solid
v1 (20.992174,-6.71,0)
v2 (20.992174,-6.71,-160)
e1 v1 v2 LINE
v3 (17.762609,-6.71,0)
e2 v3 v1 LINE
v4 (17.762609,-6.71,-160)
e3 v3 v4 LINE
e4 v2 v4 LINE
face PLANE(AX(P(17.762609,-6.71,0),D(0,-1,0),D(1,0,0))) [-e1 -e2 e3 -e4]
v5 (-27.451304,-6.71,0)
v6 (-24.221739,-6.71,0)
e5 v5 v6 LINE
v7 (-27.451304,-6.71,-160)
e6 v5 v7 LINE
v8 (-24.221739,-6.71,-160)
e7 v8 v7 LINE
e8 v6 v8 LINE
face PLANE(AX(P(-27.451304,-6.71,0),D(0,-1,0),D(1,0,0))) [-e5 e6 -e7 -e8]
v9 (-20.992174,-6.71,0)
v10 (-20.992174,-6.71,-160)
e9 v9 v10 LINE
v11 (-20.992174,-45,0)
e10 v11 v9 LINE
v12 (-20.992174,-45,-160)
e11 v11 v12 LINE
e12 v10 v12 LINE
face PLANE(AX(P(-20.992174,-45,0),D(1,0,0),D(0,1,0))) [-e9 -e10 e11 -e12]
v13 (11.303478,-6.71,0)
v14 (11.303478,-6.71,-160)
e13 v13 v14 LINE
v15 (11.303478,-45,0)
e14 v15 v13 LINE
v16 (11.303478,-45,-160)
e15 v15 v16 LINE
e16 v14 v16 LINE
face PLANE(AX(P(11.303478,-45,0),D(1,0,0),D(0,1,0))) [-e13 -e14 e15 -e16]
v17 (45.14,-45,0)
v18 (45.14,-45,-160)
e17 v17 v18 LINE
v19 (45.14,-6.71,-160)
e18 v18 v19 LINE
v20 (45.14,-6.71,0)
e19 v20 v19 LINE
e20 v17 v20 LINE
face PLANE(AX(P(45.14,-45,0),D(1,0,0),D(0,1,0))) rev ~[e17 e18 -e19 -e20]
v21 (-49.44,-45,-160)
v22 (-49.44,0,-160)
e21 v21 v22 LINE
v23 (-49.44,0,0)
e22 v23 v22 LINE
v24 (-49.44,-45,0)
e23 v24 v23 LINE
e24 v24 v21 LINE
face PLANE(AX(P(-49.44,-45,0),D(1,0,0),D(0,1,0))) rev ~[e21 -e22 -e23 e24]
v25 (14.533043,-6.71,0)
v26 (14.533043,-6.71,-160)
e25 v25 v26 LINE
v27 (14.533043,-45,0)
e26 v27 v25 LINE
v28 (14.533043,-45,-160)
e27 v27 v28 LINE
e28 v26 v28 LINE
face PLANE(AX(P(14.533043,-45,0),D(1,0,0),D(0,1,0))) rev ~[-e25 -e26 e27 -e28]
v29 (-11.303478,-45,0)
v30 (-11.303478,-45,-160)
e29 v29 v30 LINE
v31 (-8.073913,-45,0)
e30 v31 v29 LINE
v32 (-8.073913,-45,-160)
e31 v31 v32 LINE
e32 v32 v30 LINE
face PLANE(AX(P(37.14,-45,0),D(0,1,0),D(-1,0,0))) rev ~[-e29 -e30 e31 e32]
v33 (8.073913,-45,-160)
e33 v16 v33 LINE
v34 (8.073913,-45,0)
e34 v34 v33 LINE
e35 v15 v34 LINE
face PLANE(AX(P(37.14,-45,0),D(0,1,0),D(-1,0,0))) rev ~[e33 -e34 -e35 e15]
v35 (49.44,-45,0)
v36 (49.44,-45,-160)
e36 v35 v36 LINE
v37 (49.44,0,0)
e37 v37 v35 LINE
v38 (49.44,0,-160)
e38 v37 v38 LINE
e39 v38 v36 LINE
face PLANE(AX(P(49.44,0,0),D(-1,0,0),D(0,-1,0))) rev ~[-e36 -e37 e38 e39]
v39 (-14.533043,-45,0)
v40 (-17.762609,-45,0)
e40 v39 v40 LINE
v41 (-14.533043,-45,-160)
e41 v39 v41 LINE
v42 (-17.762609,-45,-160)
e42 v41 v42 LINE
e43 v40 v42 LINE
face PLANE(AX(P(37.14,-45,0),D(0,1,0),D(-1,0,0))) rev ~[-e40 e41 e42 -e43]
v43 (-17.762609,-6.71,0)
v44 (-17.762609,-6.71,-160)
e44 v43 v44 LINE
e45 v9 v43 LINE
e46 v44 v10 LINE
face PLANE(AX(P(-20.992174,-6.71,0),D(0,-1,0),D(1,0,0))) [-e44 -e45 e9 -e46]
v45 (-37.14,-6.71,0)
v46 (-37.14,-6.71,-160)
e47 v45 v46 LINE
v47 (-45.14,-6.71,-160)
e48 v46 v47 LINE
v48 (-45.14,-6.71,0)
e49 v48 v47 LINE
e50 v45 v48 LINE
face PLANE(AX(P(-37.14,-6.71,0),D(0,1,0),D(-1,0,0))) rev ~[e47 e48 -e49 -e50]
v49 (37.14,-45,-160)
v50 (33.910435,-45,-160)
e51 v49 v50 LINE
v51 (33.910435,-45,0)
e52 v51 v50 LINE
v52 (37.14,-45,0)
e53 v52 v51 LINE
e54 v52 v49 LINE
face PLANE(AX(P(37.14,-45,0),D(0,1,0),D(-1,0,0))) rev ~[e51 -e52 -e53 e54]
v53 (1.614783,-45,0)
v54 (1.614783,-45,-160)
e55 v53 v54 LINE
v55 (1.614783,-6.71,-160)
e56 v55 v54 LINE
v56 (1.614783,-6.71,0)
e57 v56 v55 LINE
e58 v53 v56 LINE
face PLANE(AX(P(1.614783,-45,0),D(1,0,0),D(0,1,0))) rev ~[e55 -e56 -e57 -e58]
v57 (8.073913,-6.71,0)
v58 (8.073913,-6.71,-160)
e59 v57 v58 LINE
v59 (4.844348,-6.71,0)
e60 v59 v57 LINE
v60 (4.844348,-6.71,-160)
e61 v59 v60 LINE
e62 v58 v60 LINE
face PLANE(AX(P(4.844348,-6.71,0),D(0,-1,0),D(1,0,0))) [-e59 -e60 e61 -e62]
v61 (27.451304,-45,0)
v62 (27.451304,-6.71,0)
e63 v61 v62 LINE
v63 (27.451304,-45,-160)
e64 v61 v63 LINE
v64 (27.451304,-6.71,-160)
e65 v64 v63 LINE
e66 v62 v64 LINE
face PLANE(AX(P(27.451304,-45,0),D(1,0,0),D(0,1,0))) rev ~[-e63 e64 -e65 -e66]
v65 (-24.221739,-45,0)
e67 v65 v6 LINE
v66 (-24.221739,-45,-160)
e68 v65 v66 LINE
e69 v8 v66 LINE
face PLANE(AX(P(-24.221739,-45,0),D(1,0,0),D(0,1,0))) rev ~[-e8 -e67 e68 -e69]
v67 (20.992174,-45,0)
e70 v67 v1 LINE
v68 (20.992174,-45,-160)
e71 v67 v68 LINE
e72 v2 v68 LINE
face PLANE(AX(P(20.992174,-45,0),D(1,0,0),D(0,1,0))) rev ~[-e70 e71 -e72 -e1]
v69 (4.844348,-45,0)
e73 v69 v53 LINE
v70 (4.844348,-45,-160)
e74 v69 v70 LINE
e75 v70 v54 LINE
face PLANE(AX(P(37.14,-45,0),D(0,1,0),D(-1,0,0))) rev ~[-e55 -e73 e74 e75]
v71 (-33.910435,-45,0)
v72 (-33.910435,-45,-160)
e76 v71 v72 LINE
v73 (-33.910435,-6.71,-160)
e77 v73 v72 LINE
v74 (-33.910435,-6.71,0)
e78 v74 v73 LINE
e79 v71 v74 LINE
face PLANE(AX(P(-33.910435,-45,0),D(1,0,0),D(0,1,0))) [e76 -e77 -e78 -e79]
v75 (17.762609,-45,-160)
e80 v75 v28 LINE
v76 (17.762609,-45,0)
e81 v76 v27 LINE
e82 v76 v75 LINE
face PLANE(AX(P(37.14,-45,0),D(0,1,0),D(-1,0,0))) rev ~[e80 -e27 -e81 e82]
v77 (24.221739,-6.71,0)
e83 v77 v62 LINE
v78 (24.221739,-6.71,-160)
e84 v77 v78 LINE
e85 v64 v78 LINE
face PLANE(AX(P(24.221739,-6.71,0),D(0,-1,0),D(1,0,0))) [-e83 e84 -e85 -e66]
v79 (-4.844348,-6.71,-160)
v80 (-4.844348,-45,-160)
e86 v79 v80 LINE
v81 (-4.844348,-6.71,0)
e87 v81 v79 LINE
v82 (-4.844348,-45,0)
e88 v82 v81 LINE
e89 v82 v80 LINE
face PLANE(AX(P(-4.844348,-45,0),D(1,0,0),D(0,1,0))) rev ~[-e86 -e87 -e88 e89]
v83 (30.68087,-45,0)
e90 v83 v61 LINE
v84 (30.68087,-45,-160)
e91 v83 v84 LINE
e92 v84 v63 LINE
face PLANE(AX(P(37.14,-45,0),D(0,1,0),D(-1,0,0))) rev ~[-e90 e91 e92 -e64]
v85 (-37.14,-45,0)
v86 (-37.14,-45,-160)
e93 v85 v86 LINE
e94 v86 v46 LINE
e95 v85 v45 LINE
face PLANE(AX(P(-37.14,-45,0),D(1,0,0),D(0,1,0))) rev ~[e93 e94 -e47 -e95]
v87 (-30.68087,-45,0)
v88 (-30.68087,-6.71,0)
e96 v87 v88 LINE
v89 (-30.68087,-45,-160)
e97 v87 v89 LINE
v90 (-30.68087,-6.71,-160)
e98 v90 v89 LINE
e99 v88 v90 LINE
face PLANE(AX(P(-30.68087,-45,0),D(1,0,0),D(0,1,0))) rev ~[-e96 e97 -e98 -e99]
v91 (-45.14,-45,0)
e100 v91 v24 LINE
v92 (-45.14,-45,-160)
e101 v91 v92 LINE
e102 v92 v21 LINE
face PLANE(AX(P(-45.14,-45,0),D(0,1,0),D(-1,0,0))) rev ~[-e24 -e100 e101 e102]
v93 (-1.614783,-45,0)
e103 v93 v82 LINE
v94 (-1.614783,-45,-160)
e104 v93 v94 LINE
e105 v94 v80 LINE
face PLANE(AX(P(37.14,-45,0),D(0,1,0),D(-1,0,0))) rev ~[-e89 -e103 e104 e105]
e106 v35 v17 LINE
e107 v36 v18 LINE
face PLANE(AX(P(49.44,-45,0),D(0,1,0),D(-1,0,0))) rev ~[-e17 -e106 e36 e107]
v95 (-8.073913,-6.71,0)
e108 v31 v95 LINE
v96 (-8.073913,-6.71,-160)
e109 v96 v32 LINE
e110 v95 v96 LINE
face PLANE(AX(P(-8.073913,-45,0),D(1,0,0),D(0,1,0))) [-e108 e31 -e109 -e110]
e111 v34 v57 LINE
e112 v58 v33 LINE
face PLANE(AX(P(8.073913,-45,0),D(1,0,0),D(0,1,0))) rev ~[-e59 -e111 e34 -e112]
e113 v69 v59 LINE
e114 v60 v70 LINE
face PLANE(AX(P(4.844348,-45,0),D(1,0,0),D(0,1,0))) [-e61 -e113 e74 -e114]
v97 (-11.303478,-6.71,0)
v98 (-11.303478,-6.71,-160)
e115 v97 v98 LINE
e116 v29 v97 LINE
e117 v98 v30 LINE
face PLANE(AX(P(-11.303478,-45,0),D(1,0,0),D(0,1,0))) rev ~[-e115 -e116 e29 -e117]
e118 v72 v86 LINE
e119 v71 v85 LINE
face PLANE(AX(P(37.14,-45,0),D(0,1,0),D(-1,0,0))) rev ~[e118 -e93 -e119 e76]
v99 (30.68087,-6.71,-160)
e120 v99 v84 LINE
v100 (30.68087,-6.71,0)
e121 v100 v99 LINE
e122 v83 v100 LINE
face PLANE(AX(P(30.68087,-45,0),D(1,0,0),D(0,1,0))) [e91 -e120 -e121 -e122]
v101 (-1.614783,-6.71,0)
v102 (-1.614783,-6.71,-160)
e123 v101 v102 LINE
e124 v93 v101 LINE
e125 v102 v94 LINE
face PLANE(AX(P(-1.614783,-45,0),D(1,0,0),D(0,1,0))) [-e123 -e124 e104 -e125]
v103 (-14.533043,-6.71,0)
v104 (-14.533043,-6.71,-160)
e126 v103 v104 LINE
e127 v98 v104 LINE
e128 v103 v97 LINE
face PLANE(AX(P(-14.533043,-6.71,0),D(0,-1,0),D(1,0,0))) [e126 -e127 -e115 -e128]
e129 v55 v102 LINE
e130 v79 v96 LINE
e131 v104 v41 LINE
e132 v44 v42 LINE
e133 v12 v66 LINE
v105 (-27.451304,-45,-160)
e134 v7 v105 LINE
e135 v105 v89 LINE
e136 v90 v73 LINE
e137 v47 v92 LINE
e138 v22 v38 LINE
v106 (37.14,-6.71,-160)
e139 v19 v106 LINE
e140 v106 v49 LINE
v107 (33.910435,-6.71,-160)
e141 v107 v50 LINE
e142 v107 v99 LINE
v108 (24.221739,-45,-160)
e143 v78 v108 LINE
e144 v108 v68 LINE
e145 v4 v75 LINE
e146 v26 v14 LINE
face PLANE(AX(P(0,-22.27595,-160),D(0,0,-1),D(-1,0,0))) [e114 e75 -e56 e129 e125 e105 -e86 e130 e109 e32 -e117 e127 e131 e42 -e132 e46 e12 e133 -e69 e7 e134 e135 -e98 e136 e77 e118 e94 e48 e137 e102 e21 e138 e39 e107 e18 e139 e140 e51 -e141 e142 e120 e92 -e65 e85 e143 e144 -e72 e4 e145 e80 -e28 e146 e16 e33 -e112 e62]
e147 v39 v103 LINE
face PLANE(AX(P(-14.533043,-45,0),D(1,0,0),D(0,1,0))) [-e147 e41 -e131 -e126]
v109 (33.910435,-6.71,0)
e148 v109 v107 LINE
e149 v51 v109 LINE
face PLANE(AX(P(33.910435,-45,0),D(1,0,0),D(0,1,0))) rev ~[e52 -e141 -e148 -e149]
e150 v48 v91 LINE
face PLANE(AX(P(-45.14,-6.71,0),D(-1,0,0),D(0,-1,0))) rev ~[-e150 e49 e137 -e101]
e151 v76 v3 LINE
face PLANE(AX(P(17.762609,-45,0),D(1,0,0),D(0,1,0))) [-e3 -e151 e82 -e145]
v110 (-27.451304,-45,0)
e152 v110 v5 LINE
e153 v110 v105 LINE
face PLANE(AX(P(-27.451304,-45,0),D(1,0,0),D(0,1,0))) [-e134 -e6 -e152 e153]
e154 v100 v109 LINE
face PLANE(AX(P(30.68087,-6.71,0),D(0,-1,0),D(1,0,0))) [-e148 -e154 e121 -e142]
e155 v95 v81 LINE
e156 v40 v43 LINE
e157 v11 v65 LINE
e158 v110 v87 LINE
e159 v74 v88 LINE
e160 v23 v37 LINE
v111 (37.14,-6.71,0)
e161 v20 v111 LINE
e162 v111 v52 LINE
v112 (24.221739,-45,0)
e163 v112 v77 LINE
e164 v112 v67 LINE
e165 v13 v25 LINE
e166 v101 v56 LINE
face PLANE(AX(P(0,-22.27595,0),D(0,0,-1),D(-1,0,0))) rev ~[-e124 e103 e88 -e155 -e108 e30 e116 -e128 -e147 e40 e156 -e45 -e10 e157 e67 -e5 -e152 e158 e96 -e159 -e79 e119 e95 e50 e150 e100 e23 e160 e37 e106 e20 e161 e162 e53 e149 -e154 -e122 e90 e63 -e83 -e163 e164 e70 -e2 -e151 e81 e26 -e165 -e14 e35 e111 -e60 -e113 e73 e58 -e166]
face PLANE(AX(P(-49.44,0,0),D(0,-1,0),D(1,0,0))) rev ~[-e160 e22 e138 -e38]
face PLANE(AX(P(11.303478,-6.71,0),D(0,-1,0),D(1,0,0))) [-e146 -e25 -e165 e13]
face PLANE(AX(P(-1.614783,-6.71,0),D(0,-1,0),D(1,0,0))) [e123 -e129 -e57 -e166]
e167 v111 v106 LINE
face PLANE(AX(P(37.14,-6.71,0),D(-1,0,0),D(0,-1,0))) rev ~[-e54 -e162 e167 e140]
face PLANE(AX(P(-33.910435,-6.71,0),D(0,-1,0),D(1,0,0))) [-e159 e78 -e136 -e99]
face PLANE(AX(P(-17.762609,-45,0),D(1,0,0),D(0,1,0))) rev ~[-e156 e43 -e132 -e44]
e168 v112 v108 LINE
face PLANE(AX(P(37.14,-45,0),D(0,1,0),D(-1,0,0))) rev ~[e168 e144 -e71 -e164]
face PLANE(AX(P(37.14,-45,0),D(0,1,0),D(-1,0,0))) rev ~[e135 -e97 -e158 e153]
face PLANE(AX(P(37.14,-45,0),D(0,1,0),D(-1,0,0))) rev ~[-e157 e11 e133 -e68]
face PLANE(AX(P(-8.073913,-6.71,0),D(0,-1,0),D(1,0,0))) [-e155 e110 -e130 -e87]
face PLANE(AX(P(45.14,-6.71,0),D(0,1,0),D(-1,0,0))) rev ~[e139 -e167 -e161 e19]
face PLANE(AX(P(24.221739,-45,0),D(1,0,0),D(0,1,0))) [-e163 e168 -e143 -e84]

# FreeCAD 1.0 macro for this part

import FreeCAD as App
import Part
import Sketcher


def add_polygon(sketch, points):
    """Adds a closed chain of lines whose ends are joined by coincident constraints."""
    first, n = sketch.GeometryCount, len(points)
    for a, b in zip(points, points[1:] + points[:1]):
        sketch.addGeometry(Part.LineSegment(App.Vector(*a, 0), App.Vector(*b, 0)), False)
    for i in range(n):
        sketch.addConstraint(Sketcher.Constraint("Coincident", first + i, 2, first + (i + 1) % n, 1))

doc = App.newDocument("Part")
body = doc.addObject("PartDesign::Body", "Body")

sketch1 = doc.addObject("Sketcher::SketchObject", "Sketch")
body.addObject(sketch1)
sketch1.AttachmentSupport = (doc.XY_Plane, [""])
sketch1.MapMode = "FlatFace"
add_polygon(sketch1, [(-49.4, 0), (-49.4, -45), (-45.1, -45), (-45.1, -6.7), (-37.1, -6.7), (-37.1, -45), (37.1, -45), (37.1, -6.7), (45.1, -6.7), (45.1, -45), (49.4, -45), (49.4, 0)])
sketch1.addConstraint(Sketcher.Constraint("Vertical", 0))
sketch1.addConstraint(Sketcher.Constraint("Horizontal", 1))
sketch1.addConstraint(Sketcher.Constraint("Vertical", 2))
sketch1.addConstraint(Sketcher.Constraint("Horizontal", 3))
sketch1.addConstraint(Sketcher.Constraint("Vertical", 4))
sketch1.addConstraint(Sketcher.Constraint("Horizontal", 5))
sketch1.addConstraint(Sketcher.Constraint("Vertical", 6))
sketch1.addConstraint(Sketcher.Constraint("Horizontal", 7))
sketch1.addConstraint(Sketcher.Constraint("Vertical", 8))
sketch1.addConstraint(Sketcher.Constraint("Horizontal", 9))
sketch1.addConstraint(Sketcher.Constraint("Vertical", 10))
sketch1.addConstraint(Sketcher.Constraint("Horizontal", 11))
sketch1.addConstraint(Sketcher.Constraint("Symmetric", 10, 2, 11, 2, -1, 1))
sketch1.addConstraint(Sketcher.Constraint("Symmetric", 3, 2, 6, 2, -2))
sketch1.addConstraint(Sketcher.Constraint("Symmetric", 1, 2, 8, 2, -2))
sketch1.addConstraint(Sketcher.Constraint("Horizontal", 1, 2, 4, 2))
sketch1.addConstraint(Sketcher.Constraint("DistanceX", 3, 1, 3, 2, 8.0))
sketch1.addConstraint(Sketcher.Constraint("DistanceY", 0, 2, 0, 1, 45.0))
sketch1.addConstraint(Sketcher.Constraint("DistanceX", 1, 1, 1, 2, 4.3))
sketch1.addConstraint(Sketcher.Constraint("DistanceX", 5, 1, 5, 2, 74.28))
sketch1.addConstraint(Sketcher.Constraint("DistanceY", 2, 1, 2, 2, 38.29))
pad1 = doc.addObject("PartDesign::Pad", "Pad")
body.addObject(pad1)
pad1.Profile = sketch1
pad1.Length = 160
pad1.Reversed = True

sketch2 = doc.addObject("Sketcher::SketchObject", "Sketch001")
body.addObject(sketch2)
sketch2.AttachmentSupport = (doc.XY_Plane, [""])
sketch2.MapMode = "FlatFace"
add_polygon(sketch2, [(-33.9, -6.7), (-33.9, -45), (-30.7, -45), (-30.7, -6.7)])
add_polygon(sketch2, [(-27.5, -6.7), (-27.5, -45), (-24.2, -45), (-24.2, -6.7)])
add_polygon(sketch2, [(-21, -6.7), (-21, -45), (-17.8, -45), (-17.8, -6.7)])
add_polygon(sketch2, [(-14.5, -6.7), (-14.5, -45), (-11.3, -45), (-11.3, -6.7)])
add_polygon(sketch2, [(-8.1, -6.7), (-8.1, -45), (-4.8, -45), (-4.8, -6.7)])
add_polygon(sketch2, [(-1.6, -6.7), (-1.6, -45), (1.6, -45), (1.6, -6.7)])
add_polygon(sketch2, [(4.8, -6.7), (4.8, -45), (8.1, -45), (8.1, -6.7)])
add_polygon(sketch2, [(11.3, -6.7), (11.3, -45), (14.5, -45), (14.5, -6.7)])
add_polygon(sketch2, [(17.8, -6.7), (17.8, -45), (21, -45), (21, -6.7)])
add_polygon(sketch2, [(24.2, -6.7), (24.2, -45), (27.5, -45), (27.5, -6.7)])
add_polygon(sketch2, [(30.7, -6.7), (30.7, -45), (33.9, -45), (33.9, -6.7)])
sketch2.addConstraint(Sketcher.Constraint("Vertical", 0))
sketch2.addConstraint(Sketcher.Constraint("Horizontal", 1))
sketch2.addConstraint(Sketcher.Constraint("Vertical", 2))
sketch2.addConstraint(Sketcher.Constraint("Horizontal", 3))
sketch2.addConstraint(Sketcher.Constraint("Vertical", 4))
sketch2.addConstraint(Sketcher.Constraint("Horizontal", 5))
sketch2.addConstraint(Sketcher.Constraint("Vertical", 6))
sketch2.addConstraint(Sketcher.Constraint("Horizontal", 7))
sketch2.addConstraint(Sketcher.Constraint("Vertical", 8))
sketch2.addConstraint(Sketcher.Constraint("Horizontal", 9))
sketch2.addConstraint(Sketcher.Constraint("Vertical", 10))
sketch2.addConstraint(Sketcher.Constraint("Horizontal", 11))
sketch2.addConstraint(Sketcher.Constraint("Vertical", 12))
sketch2.addConstraint(Sketcher.Constraint("Horizontal", 13))
sketch2.addConstraint(Sketcher.Constraint("Vertical", 14))
sketch2.addConstraint(Sketcher.Constraint("Horizontal", 15))
sketch2.addConstraint(Sketcher.Constraint("Vertical", 16))
sketch2.addConstraint(Sketcher.Constraint("Horizontal", 17))
sketch2.addConstraint(Sketcher.Constraint("Vertical", 18))
sketch2.addConstraint(Sketcher.Constraint("Horizontal", 19))
sketch2.addConstraint(Sketcher.Constraint("Vertical", 20))
sketch2.addConstraint(Sketcher.Constraint("Horizontal", 21))
sketch2.addConstraint(Sketcher.Constraint("Vertical", 22))
sketch2.addConstraint(Sketcher.Constraint("Horizontal", 23))
sketch2.addConstraint(Sketcher.Constraint("Vertical", 24))
sketch2.addConstraint(Sketcher.Constraint("Horizontal", 25))
sketch2.addConstraint(Sketcher.Constraint("Vertical", 26))
sketch2.addConstraint(Sketcher.Constraint("Horizontal", 27))
sketch2.addConstraint(Sketcher.Constraint("Vertical", 28))
sketch2.addConstraint(Sketcher.Constraint("Horizontal", 29))
sketch2.addConstraint(Sketcher.Constraint("Vertical", 30))
sketch2.addConstraint(Sketcher.Constraint("Horizontal", 31))
sketch2.addConstraint(Sketcher.Constraint("Vertical", 32))
sketch2.addConstraint(Sketcher.Constraint("Horizontal", 33))
sketch2.addConstraint(Sketcher.Constraint("Vertical", 34))
sketch2.addConstraint(Sketcher.Constraint("Horizontal", 35))
sketch2.addConstraint(Sketcher.Constraint("Vertical", 36))
sketch2.addConstraint(Sketcher.Constraint("Horizontal", 37))
sketch2.addConstraint(Sketcher.Constraint("Vertical", 38))
sketch2.addConstraint(Sketcher.Constraint("Horizontal", 39))
sketch2.addConstraint(Sketcher.Constraint("Vertical", 40))
sketch2.addConstraint(Sketcher.Constraint("Horizontal", 41))
sketch2.addConstraint(Sketcher.Constraint("Vertical", 42))
sketch2.addConstraint(Sketcher.Constraint("Horizontal", 43))
sketch2.addConstraint(Sketcher.Constraint("Symmetric", 17, 2, 24, 2, -2))
sketch2.addConstraint(Sketcher.Constraint("Symmetric", 19, 2, 26, 2, -2))
sketch2.addConstraint(Sketcher.Constraint("Symmetric", 13, 2, 28, 2, -2))
sketch2.addConstraint(Sketcher.Constraint("Symmetric", 15, 2, 30, 2, -2))
sketch2.addConstraint(Sketcher.Constraint("Symmetric", 9, 2, 32, 2, -2))
sketch2.addConstraint(Sketcher.Constraint("Symmetric", 11, 2, 34, 2, -2))
sketch2.addConstraint(Sketcher.Constraint("Symmetric", 5, 2, 36, 2, -2))
sketch2.addConstraint(Sketcher.Constraint("Symmetric", 7, 2, 38, 2, -2))
sketch2.addConstraint(Sketcher.Constraint("Symmetric", 1, 2, 40, 2, -2))
sketch2.addConstraint(Sketcher.Constraint("Symmetric", 3, 2, 42, 2, -2))
sketch2.addConstraint(Sketcher.Constraint("Horizontal", 1, 2, 4, 2))
sketch2.addConstraint(Sketcher.Constraint("Horizontal", 3, 2, 6, 2))
sketch2.addConstraint(Sketcher.Constraint("Horizontal", 5, 2, 8, 2))
sketch2.addConstraint(Sketcher.Constraint("Horizontal", 7, 2, 10, 2))
sketch2.addConstraint(Sketcher.Constraint("Horizontal", 9, 2, 12, 2))
sketch2.addConstraint(Sketcher.Constraint("Horizontal", 11, 2, 14, 2))
sketch2.addConstraint(Sketcher.Constraint("Horizontal", 13, 2, 16, 2))
sketch2.addConstraint(Sketcher.Constraint("Horizontal", 15, 2, 18, 2))
sketch2.addConstraint(Sketcher.Constraint("Horizontal", 17, 2, 20, 2))
sketch2.addConstraint(Sketcher.Constraint("Horizontal", 19, 2, 22, 2))
sketch2.addConstraint(Sketcher.Constraint("Equal", 3, 5))
sketch2.addConstraint(Sketcher.Constraint("Equal", 7, 9))
sketch2.addConstraint(Sketcher.Constraint("Equal", 11, 13))
sketch2.addConstraint(Sketcher.Constraint("Equal", 15, 17))
sketch2.addConstraint(Sketcher.Constraint("Equal", 19, 21))
sketch2.addConstraint(Sketcher.Constraint("DistanceY", 0, 2, -1, 1, 45.0))
sketch2.addConstraint(Sketcher.Constraint("DistanceY", 0, 2, 0, 1, 38.29))
sketch2.addConstraint(Sketcher.Constraint("DistanceX", 1, 1, 1, 2, 3.229565))
sketch2.addConstraint(Sketcher.Constraint("DistanceX", 1, 2, -1, 1, 30.68087))
sketch2.addConstraint(Sketcher.Constraint("DistanceX", 5, 2, -1, 1, 24.221739))
sketch2.addConstraint(Sketcher.Constraint("DistanceX", 9, 2, -1, 1, 17.762609))
sketch2.addConstraint(Sketcher.Constraint("DistanceX", 13, 2, -1, 1, 11.303478))
sketch2.addConstraint(Sketcher.Constraint("DistanceX", 12, 2, 16, 2, 6.45913))
sketch2.addConstraint(Sketcher.Constraint("DistanceX", 16, 2, 20, 2, 6.45913))
pocket1 = doc.addObject("PartDesign::Pocket", "Pocket")
body.addObject(pocket1)
pocket1.Profile = sketch2
pocket1.Type = "ThroughAll"

doc.recompute()
